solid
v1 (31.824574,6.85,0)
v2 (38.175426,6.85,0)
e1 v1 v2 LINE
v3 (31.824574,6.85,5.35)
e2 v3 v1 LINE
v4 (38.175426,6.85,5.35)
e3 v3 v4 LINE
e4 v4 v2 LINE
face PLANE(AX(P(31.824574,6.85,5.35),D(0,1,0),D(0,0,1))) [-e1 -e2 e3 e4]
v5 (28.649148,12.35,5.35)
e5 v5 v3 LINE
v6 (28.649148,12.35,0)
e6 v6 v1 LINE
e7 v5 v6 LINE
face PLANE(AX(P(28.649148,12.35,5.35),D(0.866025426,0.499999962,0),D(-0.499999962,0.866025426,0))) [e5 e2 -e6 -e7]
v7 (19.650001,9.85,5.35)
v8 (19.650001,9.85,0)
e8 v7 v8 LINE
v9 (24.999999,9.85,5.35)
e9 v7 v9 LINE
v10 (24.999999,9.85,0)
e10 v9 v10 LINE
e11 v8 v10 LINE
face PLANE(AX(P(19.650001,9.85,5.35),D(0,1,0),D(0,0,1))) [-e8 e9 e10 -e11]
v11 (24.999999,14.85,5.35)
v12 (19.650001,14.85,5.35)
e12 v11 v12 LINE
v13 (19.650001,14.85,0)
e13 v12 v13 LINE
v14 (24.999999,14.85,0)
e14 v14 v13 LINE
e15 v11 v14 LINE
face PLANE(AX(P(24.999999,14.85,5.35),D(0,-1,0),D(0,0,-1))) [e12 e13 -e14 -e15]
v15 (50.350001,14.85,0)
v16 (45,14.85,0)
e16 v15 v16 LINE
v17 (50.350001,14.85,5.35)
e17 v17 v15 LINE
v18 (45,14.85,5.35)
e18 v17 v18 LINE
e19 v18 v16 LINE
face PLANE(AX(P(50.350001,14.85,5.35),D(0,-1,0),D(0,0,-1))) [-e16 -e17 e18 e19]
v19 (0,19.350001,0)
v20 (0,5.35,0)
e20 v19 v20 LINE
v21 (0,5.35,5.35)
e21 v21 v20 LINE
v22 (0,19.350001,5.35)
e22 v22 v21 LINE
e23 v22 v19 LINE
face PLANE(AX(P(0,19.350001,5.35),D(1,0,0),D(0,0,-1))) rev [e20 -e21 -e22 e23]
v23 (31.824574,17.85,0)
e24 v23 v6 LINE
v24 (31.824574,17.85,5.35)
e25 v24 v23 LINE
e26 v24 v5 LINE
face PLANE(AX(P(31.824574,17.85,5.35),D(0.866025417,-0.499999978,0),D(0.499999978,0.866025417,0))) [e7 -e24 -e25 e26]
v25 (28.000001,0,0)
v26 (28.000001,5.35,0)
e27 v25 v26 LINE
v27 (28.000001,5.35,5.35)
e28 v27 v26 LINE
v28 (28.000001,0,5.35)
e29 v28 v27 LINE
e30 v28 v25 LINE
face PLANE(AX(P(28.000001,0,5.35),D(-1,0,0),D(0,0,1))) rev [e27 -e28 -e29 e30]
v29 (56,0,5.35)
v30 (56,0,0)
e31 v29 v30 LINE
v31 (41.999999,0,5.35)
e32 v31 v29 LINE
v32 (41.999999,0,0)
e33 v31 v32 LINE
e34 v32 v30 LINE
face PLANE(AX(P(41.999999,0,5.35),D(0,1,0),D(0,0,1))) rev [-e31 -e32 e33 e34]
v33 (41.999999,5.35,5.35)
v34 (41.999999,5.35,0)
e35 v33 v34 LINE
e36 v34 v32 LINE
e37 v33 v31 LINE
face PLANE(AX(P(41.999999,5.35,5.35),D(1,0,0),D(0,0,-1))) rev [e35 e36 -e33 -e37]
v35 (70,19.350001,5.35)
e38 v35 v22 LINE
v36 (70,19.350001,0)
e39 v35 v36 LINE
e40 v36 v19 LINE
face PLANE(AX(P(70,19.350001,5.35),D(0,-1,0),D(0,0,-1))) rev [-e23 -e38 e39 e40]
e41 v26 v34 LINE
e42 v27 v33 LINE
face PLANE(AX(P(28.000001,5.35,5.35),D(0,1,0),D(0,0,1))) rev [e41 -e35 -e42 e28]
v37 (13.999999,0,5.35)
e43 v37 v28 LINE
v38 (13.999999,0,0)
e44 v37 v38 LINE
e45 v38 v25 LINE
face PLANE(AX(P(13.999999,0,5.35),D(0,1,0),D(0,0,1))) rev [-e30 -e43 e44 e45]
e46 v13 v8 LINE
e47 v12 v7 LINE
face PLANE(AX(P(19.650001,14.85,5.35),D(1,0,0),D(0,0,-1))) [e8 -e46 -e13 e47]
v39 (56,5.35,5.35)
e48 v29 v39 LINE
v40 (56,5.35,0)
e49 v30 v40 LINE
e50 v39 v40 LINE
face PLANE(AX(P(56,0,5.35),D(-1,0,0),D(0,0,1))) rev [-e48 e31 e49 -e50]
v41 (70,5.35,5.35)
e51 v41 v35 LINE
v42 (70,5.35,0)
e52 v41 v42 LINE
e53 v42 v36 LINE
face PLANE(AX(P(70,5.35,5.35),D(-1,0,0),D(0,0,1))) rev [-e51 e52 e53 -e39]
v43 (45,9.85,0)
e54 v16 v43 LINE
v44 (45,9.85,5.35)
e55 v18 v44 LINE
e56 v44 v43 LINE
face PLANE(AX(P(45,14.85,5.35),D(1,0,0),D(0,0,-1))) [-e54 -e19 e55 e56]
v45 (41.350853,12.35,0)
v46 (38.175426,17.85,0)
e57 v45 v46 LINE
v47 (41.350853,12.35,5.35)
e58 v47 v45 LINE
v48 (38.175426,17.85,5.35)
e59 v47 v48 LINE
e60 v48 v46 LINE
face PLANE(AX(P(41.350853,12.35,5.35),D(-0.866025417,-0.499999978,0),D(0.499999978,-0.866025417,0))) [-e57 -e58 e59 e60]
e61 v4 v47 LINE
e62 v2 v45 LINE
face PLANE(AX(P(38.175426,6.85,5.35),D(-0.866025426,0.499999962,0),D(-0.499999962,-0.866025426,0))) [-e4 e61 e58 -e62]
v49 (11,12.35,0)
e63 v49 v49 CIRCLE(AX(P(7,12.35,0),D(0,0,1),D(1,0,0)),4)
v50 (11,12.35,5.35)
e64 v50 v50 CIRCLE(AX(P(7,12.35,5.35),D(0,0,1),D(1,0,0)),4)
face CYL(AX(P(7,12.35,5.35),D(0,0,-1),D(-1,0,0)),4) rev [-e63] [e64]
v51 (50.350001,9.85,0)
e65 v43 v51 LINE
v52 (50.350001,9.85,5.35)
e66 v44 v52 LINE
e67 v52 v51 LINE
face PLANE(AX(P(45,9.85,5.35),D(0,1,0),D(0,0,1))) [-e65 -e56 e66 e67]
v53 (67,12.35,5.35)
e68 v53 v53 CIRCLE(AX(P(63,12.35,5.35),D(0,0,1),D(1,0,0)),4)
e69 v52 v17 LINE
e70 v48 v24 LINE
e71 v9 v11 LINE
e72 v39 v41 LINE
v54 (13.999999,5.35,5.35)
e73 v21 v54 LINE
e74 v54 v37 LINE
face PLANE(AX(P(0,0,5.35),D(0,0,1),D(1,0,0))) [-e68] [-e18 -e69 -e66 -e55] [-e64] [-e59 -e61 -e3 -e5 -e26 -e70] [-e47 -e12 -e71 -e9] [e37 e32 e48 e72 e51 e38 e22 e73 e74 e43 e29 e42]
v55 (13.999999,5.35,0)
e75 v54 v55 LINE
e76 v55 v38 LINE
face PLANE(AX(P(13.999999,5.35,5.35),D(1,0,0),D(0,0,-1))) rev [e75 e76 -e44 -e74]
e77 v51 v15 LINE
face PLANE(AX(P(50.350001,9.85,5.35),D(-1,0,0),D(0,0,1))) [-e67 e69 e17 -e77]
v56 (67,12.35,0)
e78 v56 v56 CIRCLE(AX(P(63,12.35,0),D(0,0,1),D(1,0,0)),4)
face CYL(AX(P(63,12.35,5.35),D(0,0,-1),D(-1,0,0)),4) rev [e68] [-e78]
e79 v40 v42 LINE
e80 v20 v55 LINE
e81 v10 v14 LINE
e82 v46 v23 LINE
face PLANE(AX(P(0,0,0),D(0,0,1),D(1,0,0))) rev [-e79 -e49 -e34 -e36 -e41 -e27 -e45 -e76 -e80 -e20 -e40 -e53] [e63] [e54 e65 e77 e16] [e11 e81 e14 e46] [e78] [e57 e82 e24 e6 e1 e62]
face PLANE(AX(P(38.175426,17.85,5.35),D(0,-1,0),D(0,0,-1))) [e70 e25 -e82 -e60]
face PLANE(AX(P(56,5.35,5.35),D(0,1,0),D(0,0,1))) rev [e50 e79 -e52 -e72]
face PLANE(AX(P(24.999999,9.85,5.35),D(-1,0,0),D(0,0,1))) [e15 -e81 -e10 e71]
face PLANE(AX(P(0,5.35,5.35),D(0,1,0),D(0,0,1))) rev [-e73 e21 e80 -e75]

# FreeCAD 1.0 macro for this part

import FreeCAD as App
import Part
import Sketcher
Q = App.Units.Quantity

doc = App.newDocument("Part")
body = doc.addObject("PartDesign::Body", "Body")

# Sketch on XY plane
sketch1 = body.newObject("Sketcher::SketchObject", "Sketch")
sketch1.AttachmentSupport = (doc.getObject("XY_Plane"), [""])
sketch1.MapMode = "FlatFace"
sketch1.addGeometry([
    Part.LineSegment(App.Vector(70, 5.35, 0), App.Vector(70, 19.350001, 0)),  # 0
    Part.LineSegment(App.Vector(70, 19.350001, 0), App.Vector(0, 19.350001, 0)),  # 1
    Part.LineSegment(App.Vector(0, 19.350001, 0), App.Vector(0, 5.35, 0)),  # 2
    Part.LineSegment(App.Vector(0, 5.35, 0), App.Vector(13.999999, 5.35, 0)),  # 3
    Part.LineSegment(App.Vector(13.999999, 5.35, 0), App.Vector(13.999999, 0, 0)),  # 4
    Part.LineSegment(App.Vector(13.999999, 0, 0), App.Vector(28.000001, 0, 0)),  # 5
    Part.LineSegment(App.Vector(28.000001, 0, 0), App.Vector(28.000001, 5.35, 0)),  # 6
    Part.LineSegment(App.Vector(28.000001, 5.35, 0), App.Vector(41.999999, 5.35, 0)),  # 7
    Part.LineSegment(App.Vector(41.999999, 5.35, 0), App.Vector(41.999999, 0, 0)),  # 8
    Part.LineSegment(App.Vector(41.999999, 0, 0), App.Vector(56, 0, 0)),  # 9
    Part.LineSegment(App.Vector(56, 0, 0), App.Vector(56, 5.35, 0)),  # 10
    Part.LineSegment(App.Vector(56, 5.35, 0), App.Vector(70, 5.35, 0)),  # 11
    Part.Circle(App.Vector(7, 12.35, 0), App.Vector(0, 0, 1), 4),  # 12
    Part.LineSegment(App.Vector(24.999999, 9.85, 0), App.Vector(19.650001, 9.85, 0)),  # 13
    Part.LineSegment(App.Vector(19.650001, 9.85, 0), App.Vector(19.650001, 14.85, 0)),  # 14
    Part.LineSegment(App.Vector(19.650001, 14.85, 0), App.Vector(24.999999, 14.85, 0)),  # 15
    Part.LineSegment(App.Vector(24.999999, 14.85, 0), App.Vector(24.999999, 9.85, 0)),  # 16
    Part.LineSegment(App.Vector(38.175426, 17.85, 0), App.Vector(41.350853, 12.35, 0)),  # 17
    Part.LineSegment(App.Vector(41.350853, 12.35, 0), App.Vector(38.175426, 6.85, 0)),  # 18
    Part.LineSegment(App.Vector(38.175426, 6.85, 0), App.Vector(31.824574, 6.85, 0)),  # 19
    Part.LineSegment(App.Vector(31.824574, 6.85, 0), App.Vector(28.649148, 12.35, 0)),  # 20
    Part.LineSegment(App.Vector(28.649148, 12.35, 0), App.Vector(31.824574, 17.85, 0)),  # 21
    Part.LineSegment(App.Vector(31.824574, 17.85, 0), App.Vector(38.175426, 17.85, 0)),  # 22
    Part.LineSegment(App.Vector(50.350001, 9.85, 0), App.Vector(45, 9.85, 0)),  # 23
    Part.LineSegment(App.Vector(45, 9.85, 0), App.Vector(45, 14.85, 0)),  # 24
    Part.LineSegment(App.Vector(45, 14.85, 0), App.Vector(50.350001, 14.85, 0)),  # 25
    Part.LineSegment(App.Vector(50.350001, 14.85, 0), App.Vector(50.350001, 9.85, 0)),  # 26
    Part.Circle(App.Vector(63, 12.35, 0), App.Vector(0, 0, 1), 4),  # 27
], False)
sketch1.addConstraint([
    Sketcher.Constraint("Coincident", 0, 2, 1, 1),
    Sketcher.Constraint("Coincident", 1, 2, 2, 1),
    Sketcher.Constraint("Coincident", 2, 2, 3, 1),
    Sketcher.Constraint("Coincident", 3, 2, 4, 1),
    Sketcher.Constraint("Coincident", 4, 2, 5, 1),
    Sketcher.Constraint("Coincident", 5, 2, 6, 1),
    Sketcher.Constraint("Coincident", 6, 2, 7, 1),
    Sketcher.Constraint("Coincident", 7, 2, 8, 1),
    Sketcher.Constraint("Coincident", 8, 2, 9, 1),
    Sketcher.Constraint("Coincident", 9, 2, 10, 1),
    Sketcher.Constraint("Coincident", 10, 2, 11, 1),
    Sketcher.Constraint("Coincident", 11, 2, 0, 1),
    Sketcher.Constraint("Coincident", 13, 2, 14, 1),
    Sketcher.Constraint("Coincident", 14, 2, 15, 1),
    Sketcher.Constraint("Coincident", 15, 2, 16, 1),
    Sketcher.Constraint("Coincident", 16, 2, 13, 1),
    Sketcher.Constraint("Coincident", 17, 2, 18, 1),
    Sketcher.Constraint("Coincident", 18, 2, 19, 1),
    Sketcher.Constraint("Coincident", 19, 2, 20, 1),
    Sketcher.Constraint("Coincident", 20, 2, 21, 1),
    Sketcher.Constraint("Coincident", 21, 2, 22, 1),
    Sketcher.Constraint("Coincident", 22, 2, 17, 1),
    Sketcher.Constraint("Coincident", 23, 2, 24, 1),
    Sketcher.Constraint("Coincident", 24, 2, 25, 1),
    Sketcher.Constraint("Coincident", 25, 2, 26, 1),
    Sketcher.Constraint("Coincident", 26, 2, 23, 1),
    Sketcher.Constraint("Vertical", 0),
    Sketcher.Constraint("Horizontal", 1),
    Sketcher.Constraint("Vertical", 2),
    Sketcher.Constraint("Horizontal", 3),
    Sketcher.Constraint("Vertical", 4),
    Sketcher.Constraint("Horizontal", 5),
    Sketcher.Constraint("Vertical", 6),
    Sketcher.Constraint("Horizontal", 7),
    Sketcher.Constraint("Vertical", 8),
    Sketcher.Constraint("Horizontal", 9),
    Sketcher.Constraint("Vertical", 10),
    Sketcher.Constraint("Horizontal", 11),
    Sketcher.Constraint("Horizontal", 13),
    Sketcher.Constraint("Vertical", 14),
    Sketcher.Constraint("Horizontal", 15),
    Sketcher.Constraint("Vertical", 16),
    Sketcher.Constraint("Horizontal", 19),
    Sketcher.Constraint("Horizontal", 22),
    Sketcher.Constraint("Horizontal", 23),
    Sketcher.Constraint("Vertical", 24),
    Sketcher.Constraint("Horizontal", 25),
    Sketcher.Constraint("Vertical", 26),
    Sketcher.Constraint("Equal", 12, 27),
    Sketcher.Constraint("PointOnObject", 1, 2, -2),
    Sketcher.Constraint("PointOnObject", 4, 2, -1),
    Sketcher.Constraint("PointOnObject", 8, 2, -1),
    Sketcher.Constraint("Parallel", 17, 20),
    Sketcher.Constraint("Parallel", 18, 21),
    Sketcher.Constraint("Horizontal", 12, 3, 27, 3),
    Sketcher.Constraint("Horizontal", 3, 2, 6, 2),
    Sketcher.Constraint("Horizontal", 7, 2, 10, 2),
    Sketcher.Constraint("Horizontal", 27, 3, 17, 2),
    Sketcher.Constraint("Horizontal", 17, 2, 20, 2),
    Sketcher.Constraint("Horizontal", 16, 2, 23, 2),
    Sketcher.Constraint("Horizontal", 15, 2, 24, 2),
    Sketcher.Constraint("Vertical", 19, 2, 21, 2),
    Sketcher.Constraint("Vertical", 18, 2, 22, 2),
    Sketcher.Constraint("Equal", 3, 7),
    Sketcher.Constraint("Equal", 7, 9),
    Sketcher.Constraint("Equal", 9, 11),
    Sketcher.Constraint("Equal", 11, 0),
    Sketcher.Constraint("Equal", 5, 2),
    Sketcher.Constraint("Equal", 25, 4),
    Sketcher.Constraint("Diameter", 12, 8.0),
    Sketcher.Constraint("DistanceX", 1, 2, 1, 1, 70.0),
    Sketcher.Constraint("DistanceY", 14, 1, 14, 2, 5.0),
    Sketcher.Constraint("Angle", 17, Q("-60.000001 deg")),
    Sketcher.Constraint("DistanceX", -1, 1, 12, 3, 7.0),
    Sketcher.Constraint("DistanceX", -1, 1, 27, 3, 63.0),
    Sketcher.Constraint("DistanceX", -1, 1, 15, 2, 24.999999),
    Sketcher.Constraint("DistanceX", -1, 1, 23, 2, 45.0),
    Sketcher.Constraint("DistanceY", 27, 3, 0, 2, 7.0),
    Sketcher.Constraint("DistanceY", 19, 2, 16, 2, 3.0),
    Sketcher.Constraint("DistanceY", 15, 2, 21, 2, 3.0),
    Sketcher.Constraint("DistanceX", 23, 2, 23, 1, 5.350001),
    Sketcher.Constraint("DistanceX", -1, 1, 13, 2, 19.650001),
    Sketcher.Constraint("DistanceX", 19, 2, 19, 1, 6.350853),
    Sketcher.Constraint("DistanceX", 6, 2, 17, 2, 13.350852),
])
pad1 = body.newObject("PartDesign::Pad", "Pad")
pad1.Profile = sketch1
pad1.Length = 5.35

doc.recompute()
